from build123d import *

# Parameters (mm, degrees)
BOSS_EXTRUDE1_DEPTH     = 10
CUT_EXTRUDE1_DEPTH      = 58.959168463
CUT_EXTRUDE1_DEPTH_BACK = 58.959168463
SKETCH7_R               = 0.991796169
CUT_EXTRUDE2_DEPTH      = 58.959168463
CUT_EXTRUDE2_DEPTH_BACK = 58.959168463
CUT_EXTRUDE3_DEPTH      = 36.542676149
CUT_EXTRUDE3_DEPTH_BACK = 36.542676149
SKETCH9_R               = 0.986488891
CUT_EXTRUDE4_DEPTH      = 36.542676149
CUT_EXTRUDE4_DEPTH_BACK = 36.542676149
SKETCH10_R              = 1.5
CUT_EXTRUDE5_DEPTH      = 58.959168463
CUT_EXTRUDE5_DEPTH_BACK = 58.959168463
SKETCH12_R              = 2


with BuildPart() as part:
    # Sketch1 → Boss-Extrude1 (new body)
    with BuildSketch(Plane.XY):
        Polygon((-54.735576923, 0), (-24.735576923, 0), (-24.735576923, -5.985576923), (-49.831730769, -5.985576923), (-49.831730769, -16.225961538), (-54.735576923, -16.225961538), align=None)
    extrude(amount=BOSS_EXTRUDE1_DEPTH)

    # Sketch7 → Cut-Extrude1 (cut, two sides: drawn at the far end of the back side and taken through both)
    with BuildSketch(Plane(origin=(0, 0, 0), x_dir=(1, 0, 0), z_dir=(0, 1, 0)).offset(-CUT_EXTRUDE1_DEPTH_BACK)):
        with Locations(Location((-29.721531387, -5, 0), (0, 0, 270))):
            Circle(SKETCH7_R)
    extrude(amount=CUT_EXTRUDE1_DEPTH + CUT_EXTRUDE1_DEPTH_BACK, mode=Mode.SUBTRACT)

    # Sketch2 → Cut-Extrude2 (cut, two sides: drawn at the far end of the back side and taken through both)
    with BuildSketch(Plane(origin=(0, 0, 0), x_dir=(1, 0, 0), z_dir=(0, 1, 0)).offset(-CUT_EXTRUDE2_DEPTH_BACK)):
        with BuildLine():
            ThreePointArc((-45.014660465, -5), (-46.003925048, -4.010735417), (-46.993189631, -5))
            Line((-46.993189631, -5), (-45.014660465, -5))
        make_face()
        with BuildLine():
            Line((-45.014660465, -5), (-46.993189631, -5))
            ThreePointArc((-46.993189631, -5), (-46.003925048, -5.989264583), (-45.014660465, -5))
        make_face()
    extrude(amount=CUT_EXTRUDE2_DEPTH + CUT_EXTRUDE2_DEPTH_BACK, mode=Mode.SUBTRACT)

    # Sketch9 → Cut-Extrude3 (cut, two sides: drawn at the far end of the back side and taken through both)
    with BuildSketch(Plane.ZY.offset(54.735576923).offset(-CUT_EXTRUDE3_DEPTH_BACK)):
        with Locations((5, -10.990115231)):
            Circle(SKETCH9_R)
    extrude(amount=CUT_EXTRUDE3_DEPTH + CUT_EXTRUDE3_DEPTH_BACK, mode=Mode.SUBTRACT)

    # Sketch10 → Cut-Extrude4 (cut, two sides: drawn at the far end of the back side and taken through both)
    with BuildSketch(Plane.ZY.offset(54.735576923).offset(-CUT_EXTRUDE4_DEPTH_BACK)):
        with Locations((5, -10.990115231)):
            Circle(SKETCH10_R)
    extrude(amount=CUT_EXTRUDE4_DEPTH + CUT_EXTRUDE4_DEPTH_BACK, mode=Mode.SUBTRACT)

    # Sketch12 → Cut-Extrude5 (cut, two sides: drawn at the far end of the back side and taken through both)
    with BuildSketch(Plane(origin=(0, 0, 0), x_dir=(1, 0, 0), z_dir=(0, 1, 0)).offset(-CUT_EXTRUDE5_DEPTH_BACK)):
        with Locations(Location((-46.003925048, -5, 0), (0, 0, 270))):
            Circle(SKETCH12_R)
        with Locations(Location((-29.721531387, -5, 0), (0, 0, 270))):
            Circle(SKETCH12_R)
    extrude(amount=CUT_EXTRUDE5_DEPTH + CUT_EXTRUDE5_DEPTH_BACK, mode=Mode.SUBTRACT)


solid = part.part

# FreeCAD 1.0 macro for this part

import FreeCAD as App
import Part
import Sketcher
from FreeCAD import Vector

doc = App.newDocument("Part")
body = doc.addObject("PartDesign::Body", "Body")

# Sketch on XY plane
sketch1 = body.newObject("Sketcher::SketchObject", "Sketch")
sketch1.AttachmentSupport = (doc.getObject("XY_Plane"), [""])
sketch1.MapMode = "FlatFace"
sketch1.addGeometry([
    Part.LineSegment(Vector(-24.7, 0, 0), Vector(-54.7, 0, 0)),  # 0
    Part.LineSegment(Vector(-54.7, 0, 0), Vector(-54.7, -16.2, 0)),  # 1
    Part.LineSegment(Vector(-54.7, -16.2, 0), Vector(-49.8, -16.2, 0)),  # 2
    Part.LineSegment(Vector(-49.8, -16.2, 0), Vector(-49.8, -6, 0)),  # 3
    Part.LineSegment(Vector(-49.8, -6, 0), Vector(-24.7, -6, 0)),  # 4
    Part.LineSegment(Vector(-24.7, -6, 0), Vector(-24.7, 0, 0)),  # 5
], False)
sketch1.addConstraint([
    Sketcher.Constraint("Coincident", 0, 2, 1, 1),
    Sketcher.Constraint("Coincident", 1, 2, 2, 1),
    Sketcher.Constraint("Coincident", 2, 2, 3, 1),
    Sketcher.Constraint("Coincident", 3, 2, 4, 1),
    Sketcher.Constraint("Coincident", 4, 2, 5, 1),
    Sketcher.Constraint("Coincident", 5, 2, 0, 1),
    Sketcher.Constraint("Horizontal", 0),
    Sketcher.Constraint("Vertical", 1),
    Sketcher.Constraint("Horizontal", 2),
    Sketcher.Constraint("Vertical", 3),
    Sketcher.Constraint("Horizontal", 4),
    Sketcher.Constraint("Vertical", 5),
    Sketcher.Constraint("PointOnObject", 0, 2, -1),
    Sketcher.Constraint("DistanceX", 0, 2, 0, 1, 30.0),
    Sketcher.Constraint("DistanceY", 1, 2, 1, 1, 16.225962),
    Sketcher.Constraint("DistanceX", 2, 1, 2, 2, 4.903846),
    Sketcher.Constraint("DistanceY", 3, 1, 3, 2, 10.240385),
    Sketcher.Constraint("DistanceX", 2, 2, -1, 1, 49.831731),
])
pad1 = body.newObject("PartDesign::Pad", "Pad")
pad1.Profile = sketch1
pad1.Length = 10

# Sketch on XZ plane
sketch2 = body.newObject("Sketcher::SketchObject", "Sketch001")
sketch2.AttachmentSupport = (doc.getObject("XZ_Plane"), [""])
sketch2.MapMode = "FlatFace"
sketch2.addGeometry(Part.Circle(Vector(-29.7, 5, 0), Vector(0, 0, 1), 1), False)
sketch2.addConstraint([
    Sketcher.Constraint("DistanceY", -1, 1, 0, 3, 5.0),
    Sketcher.Constraint("Diameter", 0, 1.983592),
    Sketcher.Constraint("DistanceX", 0, 3, -1, 1, 29.721531),
])
pocket1 = body.newObject("PartDesign::Pocket", "Pocket")
pocket1.Profile = sketch2
pocket1.Type = "ThroughAll"
pocket1.Midplane = True

# Sketch on XZ plane
sketch3 = body.newObject("Sketcher::SketchObject", "Sketch002")
sketch3.AttachmentSupport = (doc.getObject("XZ_Plane"), [""])
sketch3.MapMode = "FlatFace"
sketch3.addGeometry(Part.Circle(Vector(-46, 5, 0), Vector(0, 0, 1), 1), False)
sketch3.addConstraint([
    Sketcher.Constraint("DistanceY", -1, 1, 0, 3, 5.0),
    Sketcher.Constraint("Diameter", 0, 1.978529),
    Sketcher.Constraint("DistanceX", 0, 3, -1, 1, 46.003925),
])
pocket2 = body.newObject("PartDesign::Pocket", "Pocket001")
pocket2.Profile = sketch3
pocket2.Type = "ThroughAll"
pocket2.Midplane = True

# Sketch on YZ plane
sketch4 = body.newObject("Sketcher::SketchObject", "Sketch003")
sketch4.AttachmentSupport = (doc.getObject("YZ_Plane"), [""])
sketch4.MapMode = "FlatFace"
sketch4.AttachmentOffset = App.Placement(Vector(0, 0, -54.735577), App.Rotation())
sketch4.addGeometry(Part.Circle(Vector(-11, 5, 0), Vector(0, 0, 1), 1), False)
sketch4.addConstraint([
    Sketcher.Constraint("DistanceY", -1, 1, 0, 3, 5.0),
    Sketcher.Constraint("Diameter", 0, 1.972978),
    Sketcher.Constraint("DistanceX", 0, 3, -1, 1, 10.990115),
])
pocket3 = body.newObject("PartDesign::Pocket", "Pocket002")
pocket3.Profile = sketch4
pocket3.Type = "ThroughAll"
pocket3.Midplane = True

# Sketch on YZ plane
sketch5 = body.newObject("Sketcher::SketchObject", "Sketch004")
sketch5.AttachmentSupport = (doc.getObject("YZ_Plane"), [""])
sketch5.MapMode = "FlatFace"
sketch5.AttachmentOffset = App.Placement(Vector(0, 0, -54.735577), App.Rotation())
sketch5.addGeometry(Part.Circle(Vector(-11, 5, 0), Vector(0, 0, 1), 1.5), False)
sketch5.addConstraint([
    Sketcher.Constraint("Diameter", 0, 3.0),
    Sketcher.Constraint("DistanceY", -1, 1, 0, 3, 5.0),
    Sketcher.Constraint("DistanceX", 0, 3, -1, 1, 10.990115),
])
pocket4 = body.newObject("PartDesign::Pocket", "Pocket003")
pocket4.Profile = sketch5
pocket4.Type = "ThroughAll"
pocket4.Midplane = True

# Sketch on XZ plane
sketch6 = body.newObject("Sketcher::SketchObject", "Sketch005")
sketch6.AttachmentSupport = (doc.getObject("XZ_Plane"), [""])
sketch6.MapMode = "FlatFace"
sketch6.addGeometry([
    Part.Circle(Vector(-46, 5, 0), Vector(0, 0, 1), 2),
    Part.Circle(Vector(-29.7, 5, 0), Vector(0, 0, 1), 2),
], False)
sketch6.addConstraint([
    Sketcher.Constraint("Equal", 0, 1),
    Sketcher.Constraint("Horizontal", 0, 3, 1, 3),
    Sketcher.Constraint("Diameter", 0, 4.0),
    Sketcher.Constraint("DistanceY", -1, 1, 0, 3, 5.0),
    Sketcher.Constraint("DistanceX", 1, 3, -1, 1, 29.721531),
    Sketcher.Constraint("DistanceX", 0, 3, -1, 1, 46.003925),
])
pocket5 = body.newObject("PartDesign::Pocket", "Pocket004")
pocket5.Profile = sketch6
pocket5.Type = "ThroughAll"
pocket5.Midplane = True

doc.recompute()
